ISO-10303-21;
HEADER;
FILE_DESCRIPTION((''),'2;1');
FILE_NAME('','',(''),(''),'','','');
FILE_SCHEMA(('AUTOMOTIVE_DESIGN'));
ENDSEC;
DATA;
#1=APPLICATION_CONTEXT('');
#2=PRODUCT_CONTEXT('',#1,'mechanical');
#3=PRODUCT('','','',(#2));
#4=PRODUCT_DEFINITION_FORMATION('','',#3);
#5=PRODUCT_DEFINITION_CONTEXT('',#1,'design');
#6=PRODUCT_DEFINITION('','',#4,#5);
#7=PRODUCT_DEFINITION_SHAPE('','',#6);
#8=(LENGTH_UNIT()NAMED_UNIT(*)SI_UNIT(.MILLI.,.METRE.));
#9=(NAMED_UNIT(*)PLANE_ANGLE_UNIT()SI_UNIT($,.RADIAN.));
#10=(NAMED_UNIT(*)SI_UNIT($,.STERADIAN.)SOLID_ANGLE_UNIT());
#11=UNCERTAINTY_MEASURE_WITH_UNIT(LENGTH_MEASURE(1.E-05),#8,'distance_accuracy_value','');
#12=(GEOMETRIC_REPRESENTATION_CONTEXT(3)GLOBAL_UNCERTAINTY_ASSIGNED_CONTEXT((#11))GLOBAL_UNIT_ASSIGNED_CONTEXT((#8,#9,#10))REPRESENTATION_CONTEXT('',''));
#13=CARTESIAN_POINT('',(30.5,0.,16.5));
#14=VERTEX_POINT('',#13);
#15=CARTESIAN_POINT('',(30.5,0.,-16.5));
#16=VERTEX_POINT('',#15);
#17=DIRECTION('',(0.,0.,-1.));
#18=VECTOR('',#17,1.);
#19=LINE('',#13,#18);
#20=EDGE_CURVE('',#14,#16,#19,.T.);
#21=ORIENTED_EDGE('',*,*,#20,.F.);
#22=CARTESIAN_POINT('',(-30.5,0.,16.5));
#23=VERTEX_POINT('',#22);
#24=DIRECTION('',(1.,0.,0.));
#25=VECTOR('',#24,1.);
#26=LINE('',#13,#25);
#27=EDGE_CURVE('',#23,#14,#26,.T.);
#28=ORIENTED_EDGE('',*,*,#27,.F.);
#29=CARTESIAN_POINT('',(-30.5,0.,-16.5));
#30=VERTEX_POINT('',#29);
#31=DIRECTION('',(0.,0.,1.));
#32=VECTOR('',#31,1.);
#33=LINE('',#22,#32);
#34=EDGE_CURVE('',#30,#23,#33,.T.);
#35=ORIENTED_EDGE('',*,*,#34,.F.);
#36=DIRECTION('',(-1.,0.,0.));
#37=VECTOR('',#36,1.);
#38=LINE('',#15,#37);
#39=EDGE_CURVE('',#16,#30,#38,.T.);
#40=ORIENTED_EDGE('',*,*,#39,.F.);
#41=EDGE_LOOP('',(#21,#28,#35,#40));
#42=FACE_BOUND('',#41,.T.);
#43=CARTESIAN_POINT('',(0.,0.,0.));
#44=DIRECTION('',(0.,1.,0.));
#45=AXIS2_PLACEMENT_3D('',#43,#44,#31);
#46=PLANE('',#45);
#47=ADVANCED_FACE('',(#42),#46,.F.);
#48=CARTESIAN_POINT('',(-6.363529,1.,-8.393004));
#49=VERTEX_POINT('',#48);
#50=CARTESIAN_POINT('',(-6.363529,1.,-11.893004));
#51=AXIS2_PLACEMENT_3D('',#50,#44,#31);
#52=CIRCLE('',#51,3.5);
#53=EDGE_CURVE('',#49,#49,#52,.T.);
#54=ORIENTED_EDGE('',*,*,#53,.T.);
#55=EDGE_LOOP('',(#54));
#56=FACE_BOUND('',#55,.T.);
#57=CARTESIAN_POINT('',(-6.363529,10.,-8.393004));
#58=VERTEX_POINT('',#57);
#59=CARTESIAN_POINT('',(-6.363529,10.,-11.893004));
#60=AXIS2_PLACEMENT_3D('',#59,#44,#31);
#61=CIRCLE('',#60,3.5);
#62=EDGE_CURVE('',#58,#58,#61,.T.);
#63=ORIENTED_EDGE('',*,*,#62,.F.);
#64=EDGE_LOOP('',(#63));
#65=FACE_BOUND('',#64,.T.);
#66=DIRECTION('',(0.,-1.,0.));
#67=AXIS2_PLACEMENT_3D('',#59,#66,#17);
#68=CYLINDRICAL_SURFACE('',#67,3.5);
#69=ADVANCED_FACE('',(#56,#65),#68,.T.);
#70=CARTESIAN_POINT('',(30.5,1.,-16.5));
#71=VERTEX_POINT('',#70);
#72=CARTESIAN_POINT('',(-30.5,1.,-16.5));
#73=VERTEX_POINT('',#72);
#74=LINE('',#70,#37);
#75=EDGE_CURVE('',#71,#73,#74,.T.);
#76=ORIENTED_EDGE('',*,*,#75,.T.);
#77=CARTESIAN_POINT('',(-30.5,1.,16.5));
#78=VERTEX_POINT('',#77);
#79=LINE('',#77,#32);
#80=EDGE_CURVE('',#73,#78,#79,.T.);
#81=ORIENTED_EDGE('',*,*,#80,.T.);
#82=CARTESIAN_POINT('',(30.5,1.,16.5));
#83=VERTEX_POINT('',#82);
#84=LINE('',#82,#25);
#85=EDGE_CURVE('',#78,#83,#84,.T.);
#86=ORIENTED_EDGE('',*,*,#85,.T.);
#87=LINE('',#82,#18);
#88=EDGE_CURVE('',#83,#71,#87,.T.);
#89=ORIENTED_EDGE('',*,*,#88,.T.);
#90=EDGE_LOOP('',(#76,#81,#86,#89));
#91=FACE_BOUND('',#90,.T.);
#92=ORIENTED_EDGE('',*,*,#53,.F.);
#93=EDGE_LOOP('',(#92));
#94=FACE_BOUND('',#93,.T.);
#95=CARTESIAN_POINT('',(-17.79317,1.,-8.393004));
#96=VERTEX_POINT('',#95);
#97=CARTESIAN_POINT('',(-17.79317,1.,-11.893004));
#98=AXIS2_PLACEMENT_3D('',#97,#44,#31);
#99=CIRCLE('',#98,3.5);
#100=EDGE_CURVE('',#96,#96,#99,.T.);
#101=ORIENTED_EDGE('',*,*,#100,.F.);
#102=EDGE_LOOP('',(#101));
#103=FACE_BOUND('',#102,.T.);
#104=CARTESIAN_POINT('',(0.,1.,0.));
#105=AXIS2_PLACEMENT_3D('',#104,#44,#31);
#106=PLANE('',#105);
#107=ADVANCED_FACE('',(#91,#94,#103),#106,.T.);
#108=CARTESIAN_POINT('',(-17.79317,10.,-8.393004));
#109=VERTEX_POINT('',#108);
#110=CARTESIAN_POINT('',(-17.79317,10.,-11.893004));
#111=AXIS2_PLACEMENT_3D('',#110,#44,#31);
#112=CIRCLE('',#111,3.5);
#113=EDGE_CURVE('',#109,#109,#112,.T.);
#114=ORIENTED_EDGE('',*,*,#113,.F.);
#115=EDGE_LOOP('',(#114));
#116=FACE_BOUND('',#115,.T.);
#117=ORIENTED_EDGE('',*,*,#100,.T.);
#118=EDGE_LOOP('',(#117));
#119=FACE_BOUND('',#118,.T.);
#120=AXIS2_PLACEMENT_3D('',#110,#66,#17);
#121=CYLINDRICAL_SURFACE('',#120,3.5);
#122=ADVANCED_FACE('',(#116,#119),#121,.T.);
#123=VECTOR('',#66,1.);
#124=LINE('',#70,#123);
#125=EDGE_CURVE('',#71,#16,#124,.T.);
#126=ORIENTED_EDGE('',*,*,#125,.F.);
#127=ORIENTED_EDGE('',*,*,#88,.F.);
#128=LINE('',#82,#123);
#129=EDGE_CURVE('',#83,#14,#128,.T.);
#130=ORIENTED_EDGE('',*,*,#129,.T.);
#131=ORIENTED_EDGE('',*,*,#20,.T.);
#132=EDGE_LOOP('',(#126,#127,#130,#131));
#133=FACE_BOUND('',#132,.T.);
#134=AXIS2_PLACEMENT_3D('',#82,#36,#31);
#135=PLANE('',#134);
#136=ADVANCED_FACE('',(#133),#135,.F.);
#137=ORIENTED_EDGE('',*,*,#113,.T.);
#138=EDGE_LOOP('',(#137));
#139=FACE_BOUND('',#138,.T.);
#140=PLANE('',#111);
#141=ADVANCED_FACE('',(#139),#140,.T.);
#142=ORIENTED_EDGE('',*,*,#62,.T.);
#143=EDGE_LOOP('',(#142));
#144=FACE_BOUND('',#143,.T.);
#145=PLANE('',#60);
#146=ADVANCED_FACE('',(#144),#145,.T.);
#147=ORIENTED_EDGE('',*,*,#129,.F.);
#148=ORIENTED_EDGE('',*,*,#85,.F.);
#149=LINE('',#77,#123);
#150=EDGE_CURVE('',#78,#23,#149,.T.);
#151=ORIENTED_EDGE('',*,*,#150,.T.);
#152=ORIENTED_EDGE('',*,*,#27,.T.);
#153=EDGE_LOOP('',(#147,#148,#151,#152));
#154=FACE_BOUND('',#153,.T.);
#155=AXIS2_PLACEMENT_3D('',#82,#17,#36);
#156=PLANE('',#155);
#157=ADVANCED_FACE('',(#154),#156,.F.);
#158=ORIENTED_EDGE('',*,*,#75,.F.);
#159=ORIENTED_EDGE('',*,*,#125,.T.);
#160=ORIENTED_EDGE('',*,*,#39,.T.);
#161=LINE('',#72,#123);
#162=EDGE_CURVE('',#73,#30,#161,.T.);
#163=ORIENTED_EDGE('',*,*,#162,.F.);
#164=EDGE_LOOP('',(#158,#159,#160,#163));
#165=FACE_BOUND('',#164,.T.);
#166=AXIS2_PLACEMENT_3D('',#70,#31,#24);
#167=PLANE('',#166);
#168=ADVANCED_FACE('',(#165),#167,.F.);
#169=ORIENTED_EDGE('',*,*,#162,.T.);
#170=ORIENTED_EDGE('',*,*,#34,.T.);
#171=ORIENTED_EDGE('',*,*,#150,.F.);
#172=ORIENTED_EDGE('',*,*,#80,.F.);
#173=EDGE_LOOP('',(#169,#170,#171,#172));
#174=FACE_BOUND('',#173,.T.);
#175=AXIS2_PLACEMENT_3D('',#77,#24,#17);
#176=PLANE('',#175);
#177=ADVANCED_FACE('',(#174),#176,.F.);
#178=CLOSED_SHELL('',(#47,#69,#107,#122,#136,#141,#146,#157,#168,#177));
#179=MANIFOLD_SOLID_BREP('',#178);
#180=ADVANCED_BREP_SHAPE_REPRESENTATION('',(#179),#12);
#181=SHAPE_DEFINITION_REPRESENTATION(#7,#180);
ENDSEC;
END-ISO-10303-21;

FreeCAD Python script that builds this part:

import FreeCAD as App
import Part
import Sketcher

V = App.Vector
Q = App.Units.Quantity


def add_polygon(sketch, points):
    """Adds a closed chain of lines whose ends are joined by coincident constraints."""
    first, n = sketch.GeometryCount, len(points)
    for a, b in zip(points, points[1:] + points[:1]):
        sketch.addGeometry(Part.LineSegment(App.Vector(*a, 0), App.Vector(*b, 0)), False)
    for i in range(n):
        sketch.addConstraint(Sketcher.Constraint("Coincident", first + i, 2, first + (i + 1) % n, 1))

doc = App.newDocument("Part")
params = doc.addObject("Spreadsheet::Sheet", "Params")
for row, (alias, value) in enumerate([
    ("sketch1_width", "61 mm"),
    ("sketch1_height", "33 mm"),
    ("pad1_length", "1 mm"),
    ("sketch2_diameter", "7 mm"),
    ("pad2_length", "9 mm"),
], start=1):
    params.set(f"A{row}", alias)
    params.set(f"B{row}", "=" + value)
    params.setAlias(f"B{row}", alias)

body = doc.addObject("PartDesign::Body", "Body")

# Sketch on XZ plane
sketch1 = doc.addObject("Sketcher::SketchObject", "Sketch")
body.addObject(sketch1)
sketch1.AttachmentSupport = (doc.XZ_Plane, [""])
sketch1.MapMode = "FlatFace"
add_polygon(sketch1, [(-30.5, -16.5), (-30.5, 16.5), (30.5, 16.5), (30.5, -16.5)])  # lines 0-3
sketch1.addConstraint(Sketcher.Constraint("Vertical", 0))
sketch1.addConstraint(Sketcher.Constraint("Horizontal", 1))
sketch1.addConstraint(Sketcher.Constraint("Vertical", 2))
sketch1.addConstraint(Sketcher.Constraint("Horizontal", 3))
sketch1.addConstraint(Sketcher.Constraint("Symmetric", 0, 2, 2, 2, -1, 1))
sketch1.addConstraint(Sketcher.Constraint("DistanceX", 1, 1, 1, 2, Q("61 mm")))
sketch1.addConstraint(Sketcher.Constraint("DistanceY", 0, 1, 0, 2, Q("33 mm")))
sketch1.setExpression("Constraints[9]", "Params.sketch1_width")
sketch1.setExpression("Constraints[10]", "Params.sketch1_height")
pad1 = doc.addObject("PartDesign::Pad", "Pad")
body.addObject(pad1)
pad1.Profile = sketch1
pad1.setExpression("Length", "Params.pad1_length")
pad1.Reversed = True

# Sketch on XZ plane
sketch2 = doc.addObject("Sketcher::SketchObject", "Sketch001")
body.addObject(sketch2)
sketch2.AttachmentSupport = (doc.XZ_Plane, [""])
sketch2.MapMode = "FlatFace"
sketch2.AttachmentOffset = App.Placement(V(0, 0, -1), App.Rotation())
sketch2.addGeometry(Part.Circle(V(-17.79317, -11.893004, 0), V(0, 0, 1), 3.5), False)
sketch2.addGeometry(Part.Circle(V(-6.363529, -11.893004, 0), V(0, 0, 1), 3.5), False)
sketch2.addConstraint(Sketcher.Constraint("Equal", 0, 1))
sketch2.addConstraint(Sketcher.Constraint("Horizontal", 0, 3, 1, 3))
sketch2.addConstraint(Sketcher.Constraint("Diameter", 0, Q("7 mm")))
sketch2.addConstraint(Sketcher.Constraint("DistanceX", 0, 3, -1, 1, Q("17.79317 mm")))
sketch2.addConstraint(Sketcher.Constraint("DistanceX", 1, 3, -1, 1, Q("6.363529 mm")))
sketch2.addConstraint(Sketcher.Constraint("DistanceY", 0, 3, -1, 1, Q("11.893004 mm")))
sketch2.setExpression("Constraints[2]", "Params.sketch2_diameter")
pad2 = doc.addObject("PartDesign::Pad", "Pad001")
body.addObject(pad2)
pad2.Profile = sketch2
pad2.setExpression("Length", "Params.pad2_length")
pad2.Reversed = True

doc.recompute()
